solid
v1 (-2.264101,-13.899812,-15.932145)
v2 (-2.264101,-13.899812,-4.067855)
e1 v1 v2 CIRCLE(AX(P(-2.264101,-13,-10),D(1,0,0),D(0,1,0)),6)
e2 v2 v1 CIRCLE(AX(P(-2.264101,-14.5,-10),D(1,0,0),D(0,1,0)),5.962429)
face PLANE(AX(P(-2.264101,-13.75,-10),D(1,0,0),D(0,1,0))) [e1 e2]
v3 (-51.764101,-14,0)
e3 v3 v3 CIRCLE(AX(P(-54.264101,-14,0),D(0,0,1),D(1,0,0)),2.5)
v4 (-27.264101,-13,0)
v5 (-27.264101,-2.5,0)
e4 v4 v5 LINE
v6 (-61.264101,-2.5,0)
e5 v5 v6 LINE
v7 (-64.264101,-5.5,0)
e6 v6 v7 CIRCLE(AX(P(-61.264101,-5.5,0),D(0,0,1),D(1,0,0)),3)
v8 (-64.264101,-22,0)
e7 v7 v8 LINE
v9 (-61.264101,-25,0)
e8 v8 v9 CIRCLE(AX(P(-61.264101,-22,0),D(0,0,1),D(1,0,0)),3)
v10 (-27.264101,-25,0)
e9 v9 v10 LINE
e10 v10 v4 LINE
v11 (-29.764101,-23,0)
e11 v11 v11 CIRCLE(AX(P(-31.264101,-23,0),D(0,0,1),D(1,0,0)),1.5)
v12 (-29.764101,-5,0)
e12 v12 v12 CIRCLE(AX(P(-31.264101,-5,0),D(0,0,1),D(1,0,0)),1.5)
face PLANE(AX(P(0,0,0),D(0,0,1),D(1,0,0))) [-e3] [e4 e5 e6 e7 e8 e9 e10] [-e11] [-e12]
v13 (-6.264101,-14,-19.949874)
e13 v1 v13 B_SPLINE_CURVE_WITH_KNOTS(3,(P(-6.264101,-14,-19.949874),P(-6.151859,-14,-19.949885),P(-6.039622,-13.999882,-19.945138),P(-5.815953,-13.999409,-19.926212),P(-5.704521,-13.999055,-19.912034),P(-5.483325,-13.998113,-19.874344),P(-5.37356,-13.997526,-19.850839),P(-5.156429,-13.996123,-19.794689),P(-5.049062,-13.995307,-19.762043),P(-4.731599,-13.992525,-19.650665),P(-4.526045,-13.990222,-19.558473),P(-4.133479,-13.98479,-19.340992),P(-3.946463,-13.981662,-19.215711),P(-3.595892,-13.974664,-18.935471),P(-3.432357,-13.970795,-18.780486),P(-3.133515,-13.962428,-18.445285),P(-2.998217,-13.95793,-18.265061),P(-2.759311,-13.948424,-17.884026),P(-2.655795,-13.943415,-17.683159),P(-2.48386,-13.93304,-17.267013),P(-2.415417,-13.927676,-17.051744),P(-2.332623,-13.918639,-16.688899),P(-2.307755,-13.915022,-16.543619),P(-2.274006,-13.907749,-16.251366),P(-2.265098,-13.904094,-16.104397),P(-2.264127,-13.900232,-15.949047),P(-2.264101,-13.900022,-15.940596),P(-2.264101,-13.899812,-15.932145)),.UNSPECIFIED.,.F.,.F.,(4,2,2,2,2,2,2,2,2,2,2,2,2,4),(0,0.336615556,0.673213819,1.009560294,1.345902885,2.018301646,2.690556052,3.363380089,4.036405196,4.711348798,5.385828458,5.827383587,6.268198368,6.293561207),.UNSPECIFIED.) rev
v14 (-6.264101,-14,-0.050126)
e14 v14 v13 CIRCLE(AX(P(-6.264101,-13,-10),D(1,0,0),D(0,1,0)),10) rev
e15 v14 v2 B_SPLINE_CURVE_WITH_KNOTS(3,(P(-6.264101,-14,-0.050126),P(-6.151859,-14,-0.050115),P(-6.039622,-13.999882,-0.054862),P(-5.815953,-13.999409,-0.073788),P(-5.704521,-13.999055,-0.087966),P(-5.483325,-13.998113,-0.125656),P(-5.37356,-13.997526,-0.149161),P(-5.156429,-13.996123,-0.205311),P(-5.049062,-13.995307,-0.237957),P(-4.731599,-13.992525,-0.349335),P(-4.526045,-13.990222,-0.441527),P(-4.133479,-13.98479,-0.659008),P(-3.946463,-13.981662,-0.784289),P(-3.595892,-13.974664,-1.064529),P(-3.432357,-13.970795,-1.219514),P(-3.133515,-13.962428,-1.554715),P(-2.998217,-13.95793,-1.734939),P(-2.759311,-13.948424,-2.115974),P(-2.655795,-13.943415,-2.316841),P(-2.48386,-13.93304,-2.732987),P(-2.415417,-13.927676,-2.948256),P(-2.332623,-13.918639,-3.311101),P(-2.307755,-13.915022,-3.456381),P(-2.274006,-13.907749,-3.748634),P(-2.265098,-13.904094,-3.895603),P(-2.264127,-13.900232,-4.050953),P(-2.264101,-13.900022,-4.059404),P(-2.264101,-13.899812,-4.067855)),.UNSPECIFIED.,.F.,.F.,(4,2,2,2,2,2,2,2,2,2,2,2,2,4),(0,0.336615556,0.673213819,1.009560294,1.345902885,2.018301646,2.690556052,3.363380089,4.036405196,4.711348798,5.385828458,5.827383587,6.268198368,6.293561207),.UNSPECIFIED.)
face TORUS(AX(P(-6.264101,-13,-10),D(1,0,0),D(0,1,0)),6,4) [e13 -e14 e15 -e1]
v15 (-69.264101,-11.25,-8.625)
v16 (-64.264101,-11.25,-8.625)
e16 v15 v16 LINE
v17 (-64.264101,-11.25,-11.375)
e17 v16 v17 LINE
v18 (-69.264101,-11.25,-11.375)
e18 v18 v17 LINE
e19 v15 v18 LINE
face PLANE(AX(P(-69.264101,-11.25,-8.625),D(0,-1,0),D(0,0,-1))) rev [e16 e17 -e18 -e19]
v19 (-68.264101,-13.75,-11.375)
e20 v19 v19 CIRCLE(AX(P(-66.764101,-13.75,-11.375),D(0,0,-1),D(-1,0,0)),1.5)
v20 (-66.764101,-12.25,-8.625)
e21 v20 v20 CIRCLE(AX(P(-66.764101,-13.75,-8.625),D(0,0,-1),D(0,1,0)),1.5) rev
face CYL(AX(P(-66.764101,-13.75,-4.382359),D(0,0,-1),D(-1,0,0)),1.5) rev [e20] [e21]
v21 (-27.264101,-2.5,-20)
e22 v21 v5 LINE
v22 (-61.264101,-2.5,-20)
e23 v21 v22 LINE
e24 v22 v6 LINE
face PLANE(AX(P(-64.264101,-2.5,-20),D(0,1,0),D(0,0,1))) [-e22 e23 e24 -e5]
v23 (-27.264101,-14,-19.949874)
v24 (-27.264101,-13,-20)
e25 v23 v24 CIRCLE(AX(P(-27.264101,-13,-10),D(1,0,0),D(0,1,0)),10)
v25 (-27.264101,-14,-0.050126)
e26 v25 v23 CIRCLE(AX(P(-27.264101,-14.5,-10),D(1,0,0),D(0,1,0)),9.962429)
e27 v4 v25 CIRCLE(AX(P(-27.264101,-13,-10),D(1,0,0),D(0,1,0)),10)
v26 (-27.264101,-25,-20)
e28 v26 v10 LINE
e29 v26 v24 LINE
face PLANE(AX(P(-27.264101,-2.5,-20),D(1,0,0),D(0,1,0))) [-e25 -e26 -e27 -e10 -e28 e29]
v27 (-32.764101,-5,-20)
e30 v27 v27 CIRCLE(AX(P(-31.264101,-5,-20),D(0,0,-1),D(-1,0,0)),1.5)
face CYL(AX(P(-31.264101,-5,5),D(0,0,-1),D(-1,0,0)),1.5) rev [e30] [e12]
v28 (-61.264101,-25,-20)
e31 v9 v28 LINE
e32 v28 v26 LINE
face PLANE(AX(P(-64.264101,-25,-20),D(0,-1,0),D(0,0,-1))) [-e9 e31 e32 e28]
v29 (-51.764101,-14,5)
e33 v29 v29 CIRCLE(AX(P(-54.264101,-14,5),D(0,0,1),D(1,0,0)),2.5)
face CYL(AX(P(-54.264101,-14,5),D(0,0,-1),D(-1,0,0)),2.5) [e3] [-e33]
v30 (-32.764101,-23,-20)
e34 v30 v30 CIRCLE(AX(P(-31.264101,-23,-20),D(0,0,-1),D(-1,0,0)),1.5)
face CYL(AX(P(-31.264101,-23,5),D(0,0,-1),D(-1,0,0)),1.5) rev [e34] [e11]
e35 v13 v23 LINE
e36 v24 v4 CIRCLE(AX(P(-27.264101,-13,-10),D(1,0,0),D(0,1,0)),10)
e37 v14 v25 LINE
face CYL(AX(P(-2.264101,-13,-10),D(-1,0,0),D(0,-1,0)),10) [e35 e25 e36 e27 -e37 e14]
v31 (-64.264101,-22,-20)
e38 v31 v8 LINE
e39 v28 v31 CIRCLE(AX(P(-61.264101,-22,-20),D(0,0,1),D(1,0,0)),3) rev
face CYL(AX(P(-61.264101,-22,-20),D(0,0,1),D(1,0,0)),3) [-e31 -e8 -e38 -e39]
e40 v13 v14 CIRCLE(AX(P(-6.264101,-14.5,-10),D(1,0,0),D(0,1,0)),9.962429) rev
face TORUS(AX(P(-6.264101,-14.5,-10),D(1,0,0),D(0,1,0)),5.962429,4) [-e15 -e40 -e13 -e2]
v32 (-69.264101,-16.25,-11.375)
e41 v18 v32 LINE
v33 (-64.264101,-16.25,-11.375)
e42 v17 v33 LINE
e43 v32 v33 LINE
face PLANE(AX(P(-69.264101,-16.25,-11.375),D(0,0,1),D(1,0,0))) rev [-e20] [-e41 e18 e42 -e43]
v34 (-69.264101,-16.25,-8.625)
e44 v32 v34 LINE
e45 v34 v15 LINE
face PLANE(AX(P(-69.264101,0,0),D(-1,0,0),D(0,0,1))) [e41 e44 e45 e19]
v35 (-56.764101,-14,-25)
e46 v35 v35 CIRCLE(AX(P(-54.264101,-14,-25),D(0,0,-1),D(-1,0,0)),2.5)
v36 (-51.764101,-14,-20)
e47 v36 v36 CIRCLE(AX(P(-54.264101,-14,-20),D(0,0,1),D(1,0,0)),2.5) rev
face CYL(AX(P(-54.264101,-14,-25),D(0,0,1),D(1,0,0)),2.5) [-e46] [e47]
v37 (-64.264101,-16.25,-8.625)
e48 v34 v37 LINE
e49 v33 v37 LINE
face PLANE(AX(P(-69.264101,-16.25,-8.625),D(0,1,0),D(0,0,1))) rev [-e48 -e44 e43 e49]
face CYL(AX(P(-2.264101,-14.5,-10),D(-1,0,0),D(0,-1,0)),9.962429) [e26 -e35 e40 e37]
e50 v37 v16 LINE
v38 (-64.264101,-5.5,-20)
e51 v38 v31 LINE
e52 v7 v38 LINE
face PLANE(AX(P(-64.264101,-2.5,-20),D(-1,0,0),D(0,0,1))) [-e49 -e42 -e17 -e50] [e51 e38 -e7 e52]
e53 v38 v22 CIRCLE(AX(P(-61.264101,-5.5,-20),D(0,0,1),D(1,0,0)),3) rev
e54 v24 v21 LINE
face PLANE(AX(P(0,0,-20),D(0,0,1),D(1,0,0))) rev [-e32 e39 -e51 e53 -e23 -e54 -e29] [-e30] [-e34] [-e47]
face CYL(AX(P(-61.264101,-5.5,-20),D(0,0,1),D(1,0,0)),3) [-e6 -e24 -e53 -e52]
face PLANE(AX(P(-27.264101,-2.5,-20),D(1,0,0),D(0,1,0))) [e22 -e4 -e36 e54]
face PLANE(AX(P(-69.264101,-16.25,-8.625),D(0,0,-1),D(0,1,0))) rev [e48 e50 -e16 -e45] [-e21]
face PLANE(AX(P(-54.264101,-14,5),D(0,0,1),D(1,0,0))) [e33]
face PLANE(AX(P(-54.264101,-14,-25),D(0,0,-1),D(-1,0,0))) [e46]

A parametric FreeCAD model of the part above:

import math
import FreeCAD as App
import Part
import Sketcher
from FreeCAD import Vector
Q = App.Units.Quantity


def edges_at(feature, points):
    """Names of the edges that pass closest to the given points."""
    edges = feature.Shape.Edges
    near = lambda p: min(range(len(edges)), key=lambda i: edges[i].distToShape(Part.Vertex(*p))[0])
    return sorted({f"Edge{near(p) + 1}" for p in points})


def add_polygon(sketch, points):
    """Adds a closed chain of lines whose ends are joined by coincident constraints."""
    first, n = sketch.GeometryCount, len(points)
    for a, b in zip(points, points[1:] + points[:1]):
        sketch.addGeometry(Part.LineSegment(App.Vector(*a, 0), App.Vector(*b, 0)), False)
    for i in range(n):
        sketch.addConstraint(Sketcher.Constraint("Coincident", first + i, 2, first + (i + 1) % n, 1))

doc = App.newDocument("Part")
params = doc.addObject("Spreadsheet::Sheet", "Params")
for row, (alias, value) in enumerate([
    ("sketch1_width", "37 mm"),
    ("sketch1_height", "22.5 mm"),
    ("pad1_length", "20 mm"),
    ("sketch2_radius", "10 mm"),
    ("pad2_length", "25 mm"),
    ("sketch3_diameter", "5 mm"),
    ("pad3_length", "5 mm"),
    ("sketch4_diameter", "5 mm"),
    ("pad4_length", "5 mm"),
    ("fillet_radius", "3 mm"),
    ("fillet2_radius", "4 mm"),
    ("sketch5_width", "5 mm"),
    ("sketch5_height", "2.75 mm"),
    ("pad5_length", "5 mm"),
    ("sketch6_diameter", "3 mm"),
    ("pocket1_length", "2.75 mm"),
    ("sketch7_diameter", "3 mm"),
], start=1):
    params.set(f"A{row}", alias)
    params.set(f"B{row}", "=" + value)
    params.setAlias(f"B{row}", alias)

body = doc.addObject("PartDesign::Body", "Body")

sketch1 = doc.addObject("Sketcher::SketchObject", "Sketch")
body.addObject(sketch1)
sketch1.AttachmentSupport = (doc.XY_Plane, [""])
sketch1.MapMode = "FlatFace"
add_polygon(sketch1, [(-64, -2), (-64, -25), (-27, -25), (-27, -2)])
sketch1.addConstraint([
    Sketcher.Constraint("Vertical", 0),
    Sketcher.Constraint("Horizontal", 1),
    Sketcher.Constraint("Vertical", 2),
    Sketcher.Constraint("Horizontal", 3),
    Sketcher.Constraint("DistanceX", 1, 1, 1, 2, Q("37 mm")),
    Sketcher.Constraint("DistanceY", 0, 2, 0, 1, Q("22.5 mm")),
    Sketcher.Constraint("DistanceY", 0, 2, -1, 1, Q("25 mm")),
    Sketcher.Constraint("DistanceX", 0, 2, -1, 1, Q("64.264101 mm")),
])
sketch1.setExpression("Constraints[8]", "Params.sketch1_width")
sketch1.setExpression("Constraints[9]", "Params.sketch1_height")
pad1 = doc.addObject("PartDesign::Pad", "Pad")
body.addObject(pad1)
pad1.Profile = sketch1
pad1.setExpression("Length", "Params.pad1_length")
pad1.Reversed = True

sketch2 = doc.addObject("Sketcher::SketchObject", "Sketch001")
body.addObject(sketch2)
sketch2.AttachmentSupport = (doc.YZ_Plane, [""])
sketch2.MapMode = "FlatFace"
sketch2.AttachmentOffset = App.Placement(Vector(0, 0, -27.264101), App.Rotation())
sketch2.addGeometry([
    Part.ArcOfCircle(Part.Circle(Vector(-14, -10, 0), Vector(0, 0, 1), 10), math.radians(87), math.radians(273)),
    Part.ArcOfCircle(Part.Circle(Vector(-13, -10, 0), Vector(0, 0, 1), 10), math.radians(-96), math.radians(96)),
], False)
sketch2.addConstraint([
    Sketcher.Constraint("Coincident", 0, 1, 1, 2),
    Sketcher.Constraint("Coincident", 1, 1, 0, 2),
    Sketcher.Constraint("Horizontal", 0, 3, 1, 3),
    Sketcher.Constraint("Radius", 1, Q("10 mm")),
    Sketcher.Constraint("DistanceY", 0, 3, -1, 1, Q("10 mm")),
    Sketcher.Constraint("DistanceX", 1, 3, -1, 1, Q("13 mm")),
    Sketcher.Constraint("DistanceX", 0, 1, -1, 1, Q("14 mm")),
    Sketcher.Constraint("DistanceX", 0, 3, -1, 1, Q("14.5 mm")),
])
sketch2.setExpression("Constraints[3]", "Params.sketch2_radius")
pad2 = doc.addObject("PartDesign::Pad", "Pad001")
body.addObject(pad2)
pad2.Profile = sketch2
pad2.setExpression("Length", "Params.pad2_length")

sketch3 = doc.addObject("Sketcher::SketchObject", "Sketch002")
body.addObject(sketch3)
sketch3.AttachmentSupport = (doc.XY_Plane, [""])
sketch3.MapMode = "FlatFace"
sketch3.addGeometry(Part.Circle(Vector(-54.3, -14, 0), Vector(0, 0, 1), 2.5), False)
sketch3.addConstraint([
    Sketcher.Constraint("Diameter", 0, Q("5 mm")),
    Sketcher.Constraint("DistanceY", 0, 3, -1, 1, Q("14 mm")),
    Sketcher.Constraint("DistanceX", 0, 3, -1, 1, Q("54.264101 mm")),
])
sketch3.setExpression("Constraints[0]", "Params.sketch3_diameter")
pad3 = doc.addObject("PartDesign::Pad", "Pad002")
body.addObject(pad3)
pad3.Profile = sketch3
pad3.setExpression("Length", "Params.pad3_length")

sketch4 = doc.addObject("Sketcher::SketchObject", "Sketch003")
body.addObject(sketch4)
sketch4.AttachmentSupport = (doc.XY_Plane, [""])
sketch4.MapMode = "FlatFace"
sketch4.AttachmentOffset = App.Placement(Vector(0, 0, -25), App.Rotation())
sketch4.addGeometry(Part.Circle(Vector(-54.3, -14, 0), Vector(0, 0, 1), 2.5), False)
sketch4.addConstraint([
    Sketcher.Constraint("Diameter", 0, Q("5 mm")),
    Sketcher.Constraint("DistanceY", 0, 3, -1, 1, Q("14 mm")),
    Sketcher.Constraint("DistanceX", 0, 3, -1, 1, Q("54.264101 mm")),
])
sketch4.setExpression("Constraints[0]", "Params.sketch4_diameter")
pad4 = doc.addObject("PartDesign::Pad", "Pad003")
body.addObject(pad4)
pad4.Profile = sketch4
pad4.setExpression("Length", "Params.pad4_length")
doc.recompute()

fillet = doc.addObject("PartDesign::Fillet", "Fillet")
body.addObject(fillet)
fillet.Base = (pad4, edges_at(pad4, [(-64.264, -2.5, -10), (-64.264, -25, -10)]))
fillet.setExpression("Radius", "Params.fillet_radius")
doc.recompute()

fillet2 = doc.addObject("PartDesign::Fillet", "Fillet001")
body.addObject(fillet2)
fillet2.Base = (fillet, edges_at(fillet, [(-2.264, -3, -10), (-2.264, -24.462, -10)]))
fillet2.setExpression("Radius", "Params.fillet2_radius")

sketch5 = doc.addObject("Sketcher::SketchObject", "Sketch004")
body.addObject(sketch5)
sketch5.AttachmentSupport = (doc.YZ_Plane, [""])
sketch5.MapMode = "FlatFace"
sketch5.AttachmentOffset = App.Placement(Vector(0, 0, -64.264101), App.Rotation())
add_polygon(sketch5, [(-11.2, -11.4), (-16.2, -11.4), (-16.2, -8.6), (-11.2, -8.6)])
sketch5.addConstraint([
    Sketcher.Constraint("Horizontal", 0),
    Sketcher.Constraint("Vertical", 1),
    Sketcher.Constraint("Horizontal", 2),
    Sketcher.Constraint("Vertical", 3),
    Sketcher.Constraint("DistanceX", 0, 2, 0, 1, Q("5 mm")),
    Sketcher.Constraint("DistanceY", 1, 1, 1, 2, Q("2.75 mm")),
    Sketcher.Constraint("DistanceX", 0, 2, -1, 1, Q("16.25 mm")),
    Sketcher.Constraint("DistanceY", 0, 2, -1, 1, Q("11.375 mm")),
])
sketch5.setExpression("Constraints[8]", "Params.sketch5_width")
sketch5.setExpression("Constraints[9]", "Params.sketch5_height")
pad5 = doc.addObject("PartDesign::Pad", "Pad004")
body.addObject(pad5)
pad5.Profile = sketch5
pad5.setExpression("Length", "Params.pad5_length")
pad5.Reversed = True

sketch6 = doc.addObject("Sketcher::SketchObject", "Sketch005")
body.addObject(sketch6)
sketch6.AttachmentSupport = (doc.XY_Plane, [""])
sketch6.MapMode = "FlatFace"
sketch6.AttachmentOffset = App.Placement(Vector(0, 0, -11.375), App.Rotation())
sketch6.addGeometry(Part.Circle(Vector(-66.8, -13.8, 0), Vector(0, 0, 1), 1.5), False)
sketch6.addConstraint([
    Sketcher.Constraint("Diameter", 0, Q("3 mm")),
    Sketcher.Constraint("DistanceY", 0, 3, -1, 1, Q("13.75 mm")),
    Sketcher.Constraint("DistanceX", 0, 3, -1, 1, Q("66.764101 mm")),
])
sketch6.setExpression("Constraints[0]", "Params.sketch6_diameter")
pocket1 = doc.addObject("PartDesign::Pocket", "Pocket")
body.addObject(pocket1)
pocket1.Profile = sketch6
pocket1.setExpression("Length", "Params.pocket1_length")
pocket1.Reversed = True

sketch7 = doc.addObject("Sketcher::SketchObject", "Sketch006")
body.addObject(sketch7)
sketch7.AttachmentSupport = (doc.XY_Plane, [""])
sketch7.MapMode = "FlatFace"
sketch7.AttachmentOffset = App.Placement(Vector(0, 0, -20), App.Rotation())
sketch7.addGeometry([
    Part.Circle(Vector(-31.3, -5, 0), Vector(0, 0, 1), 1.5),
    Part.Circle(Vector(-31.3, -23, 0), Vector(0, 0, 1), 1.5),
], False)
sketch7.addConstraint([
    Sketcher.Constraint("Equal", 0, 1),
    Sketcher.Constraint("Vertical", 0, 3, 1, 3),
    Sketcher.Constraint("Diameter", 0, Q("3 mm")),
    Sketcher.Constraint("DistanceY", 0, 3, -1, 1, Q("5 mm")),
    Sketcher.Constraint("DistanceY", 1, 3, -1, 1, Q("23 mm")),
    Sketcher.Constraint("DistanceX", 0, 3, -1, 1, Q("31.264101 mm")),
])
sketch7.setExpression("Constraints[2]", "Params.sketch7_diameter")
pocket2 = doc.addObject("PartDesign::Pocket", "Pocket001")
body.addObject(pocket2)
pocket2.Profile = sketch7
pocket2.Type = "ThroughAll"
pocket2.Reversed = True

doc.recompute()
